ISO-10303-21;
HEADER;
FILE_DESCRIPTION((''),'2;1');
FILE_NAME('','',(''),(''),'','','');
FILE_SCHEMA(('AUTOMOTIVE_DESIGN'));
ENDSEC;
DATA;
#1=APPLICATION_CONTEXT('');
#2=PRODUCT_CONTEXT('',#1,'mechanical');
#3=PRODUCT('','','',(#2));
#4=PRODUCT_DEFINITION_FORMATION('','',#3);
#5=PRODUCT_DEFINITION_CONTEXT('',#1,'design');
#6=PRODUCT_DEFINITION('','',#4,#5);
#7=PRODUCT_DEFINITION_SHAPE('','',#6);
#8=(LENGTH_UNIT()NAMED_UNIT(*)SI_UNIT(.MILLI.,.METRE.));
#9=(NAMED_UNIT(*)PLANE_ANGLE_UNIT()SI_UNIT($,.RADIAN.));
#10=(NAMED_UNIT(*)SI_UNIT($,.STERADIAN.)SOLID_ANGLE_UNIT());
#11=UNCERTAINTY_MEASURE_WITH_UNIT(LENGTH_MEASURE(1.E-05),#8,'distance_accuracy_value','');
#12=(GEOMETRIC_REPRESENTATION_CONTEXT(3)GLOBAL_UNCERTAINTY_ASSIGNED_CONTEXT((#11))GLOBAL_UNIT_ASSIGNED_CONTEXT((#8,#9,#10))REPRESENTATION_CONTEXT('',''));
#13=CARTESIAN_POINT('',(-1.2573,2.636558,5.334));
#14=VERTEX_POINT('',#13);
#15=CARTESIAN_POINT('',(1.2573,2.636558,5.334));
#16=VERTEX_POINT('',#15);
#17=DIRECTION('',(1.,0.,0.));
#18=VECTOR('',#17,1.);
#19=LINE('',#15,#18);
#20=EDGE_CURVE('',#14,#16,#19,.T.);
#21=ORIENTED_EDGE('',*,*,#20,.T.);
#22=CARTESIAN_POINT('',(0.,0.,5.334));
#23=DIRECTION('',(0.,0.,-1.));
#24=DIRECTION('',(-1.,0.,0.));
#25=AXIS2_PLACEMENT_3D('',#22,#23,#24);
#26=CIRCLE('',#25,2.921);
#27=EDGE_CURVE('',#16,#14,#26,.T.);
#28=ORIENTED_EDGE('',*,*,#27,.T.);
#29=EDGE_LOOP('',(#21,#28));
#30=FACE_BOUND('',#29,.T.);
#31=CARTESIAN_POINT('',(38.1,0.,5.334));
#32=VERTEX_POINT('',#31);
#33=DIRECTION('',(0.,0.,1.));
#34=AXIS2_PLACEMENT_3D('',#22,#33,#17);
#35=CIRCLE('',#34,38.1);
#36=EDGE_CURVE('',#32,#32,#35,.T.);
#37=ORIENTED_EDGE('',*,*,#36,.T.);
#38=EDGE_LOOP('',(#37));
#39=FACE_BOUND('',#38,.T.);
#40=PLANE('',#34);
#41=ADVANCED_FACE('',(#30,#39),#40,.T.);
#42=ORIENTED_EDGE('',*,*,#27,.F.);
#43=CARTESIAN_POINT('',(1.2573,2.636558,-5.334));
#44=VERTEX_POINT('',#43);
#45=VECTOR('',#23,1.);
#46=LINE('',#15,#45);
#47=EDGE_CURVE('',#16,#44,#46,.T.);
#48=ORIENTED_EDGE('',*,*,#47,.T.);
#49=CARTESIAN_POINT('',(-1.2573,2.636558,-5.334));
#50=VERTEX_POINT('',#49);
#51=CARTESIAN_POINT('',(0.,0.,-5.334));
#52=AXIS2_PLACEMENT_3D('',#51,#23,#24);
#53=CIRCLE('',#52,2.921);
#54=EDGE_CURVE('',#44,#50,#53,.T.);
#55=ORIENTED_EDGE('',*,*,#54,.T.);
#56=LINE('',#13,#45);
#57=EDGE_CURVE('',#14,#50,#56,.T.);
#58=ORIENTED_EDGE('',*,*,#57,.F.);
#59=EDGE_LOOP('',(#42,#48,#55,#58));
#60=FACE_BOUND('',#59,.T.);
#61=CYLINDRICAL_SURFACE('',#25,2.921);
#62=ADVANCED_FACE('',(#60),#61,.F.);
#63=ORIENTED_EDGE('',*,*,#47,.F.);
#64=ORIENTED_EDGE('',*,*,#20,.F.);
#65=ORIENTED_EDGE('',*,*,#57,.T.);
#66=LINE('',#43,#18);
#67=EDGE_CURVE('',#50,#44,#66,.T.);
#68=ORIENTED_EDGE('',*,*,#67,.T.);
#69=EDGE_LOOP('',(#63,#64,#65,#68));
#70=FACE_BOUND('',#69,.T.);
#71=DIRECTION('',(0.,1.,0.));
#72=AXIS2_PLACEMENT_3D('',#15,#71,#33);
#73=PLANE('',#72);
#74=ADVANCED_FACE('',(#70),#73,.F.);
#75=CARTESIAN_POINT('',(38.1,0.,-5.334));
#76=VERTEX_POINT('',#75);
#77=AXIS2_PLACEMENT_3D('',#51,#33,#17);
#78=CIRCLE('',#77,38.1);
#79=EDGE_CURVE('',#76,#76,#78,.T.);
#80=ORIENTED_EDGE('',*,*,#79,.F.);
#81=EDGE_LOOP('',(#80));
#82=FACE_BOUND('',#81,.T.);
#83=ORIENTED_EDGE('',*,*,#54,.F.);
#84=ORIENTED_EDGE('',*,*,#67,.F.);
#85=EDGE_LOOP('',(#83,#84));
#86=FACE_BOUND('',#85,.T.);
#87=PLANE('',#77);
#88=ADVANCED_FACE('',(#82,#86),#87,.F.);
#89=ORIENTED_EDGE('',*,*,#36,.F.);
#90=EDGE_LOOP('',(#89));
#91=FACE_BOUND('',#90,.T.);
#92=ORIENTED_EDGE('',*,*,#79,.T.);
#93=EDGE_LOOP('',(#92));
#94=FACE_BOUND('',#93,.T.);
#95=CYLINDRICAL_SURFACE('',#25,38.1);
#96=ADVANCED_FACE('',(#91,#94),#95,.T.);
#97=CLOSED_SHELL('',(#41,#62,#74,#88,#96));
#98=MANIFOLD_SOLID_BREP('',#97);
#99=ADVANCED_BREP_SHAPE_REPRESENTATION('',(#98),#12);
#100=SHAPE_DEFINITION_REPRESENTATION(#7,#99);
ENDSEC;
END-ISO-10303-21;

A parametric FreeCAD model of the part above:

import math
import FreeCAD as App
import Part
import Sketcher
from FreeCAD import Vector
Q = App.Units.Quantity

doc = App.newDocument("Part")
body = doc.addObject("PartDesign::Body", "Body")

# Sketch on XY plane
sketch1 = body.newObject("Sketcher::SketchObject", "Sketch")
sketch1.AttachmentSupport = (doc.getObject("XY_Plane"), [""])
sketch1.MapMode = "FlatFace"
sketch1.addGeometry(Part.Circle(Vector(0, 0, 0), Vector(0, 0, 1), 38), False)
sketch1.addConstraint([
    Sketcher.Constraint("Coincident", 0, 3, -1, 1),
    Sketcher.Constraint("Diameter", 0, Q("3 in")),
])
pad1 = body.newObject("PartDesign::Pad", "Pad")
pad1.Profile = sketch1
pad1.Length = Q("0.42 in")
pad1.Midplane = True

# Sketch on XY plane
sketch2 = body.newObject("Sketcher::SketchObject", "Sketch001")
sketch2.AttachmentSupport = (doc.getObject("XY_Plane"), [""])
sketch2.MapMode = "FlatFace"
sketch2.AttachmentOffset = App.Placement(Vector(0, 0, -0.21 * 25.4), App.Rotation())
sketch2.addGeometry([
    Part.LineSegment(Vector(-1.3, 2.6, 0), Vector(1.3, 2.6, 0)),
    Part.ArcOfCircle(Part.Circle(Vector(0, 0, 0), Vector(0, 0, 1), 2.9), math.radians(115), math.radians(425)),
], False)
sketch2.addConstraint([
    Sketcher.Constraint("Coincident", 0, 1, 1, 1),
    Sketcher.Constraint("Coincident", 1, 2, 0, 2),
    Sketcher.Constraint("Horizontal", 0),
    Sketcher.Constraint("Coincident", 1, 3, -1, 1),
    Sketcher.Constraint("Radius", 1, Q("0.115 in")),
    Sketcher.Constraint("DistanceX", 0, 1, 0, 2, Q("0.099 in")),
])
pocket1 = body.newObject("PartDesign::Pocket", "Pocket")
pocket1.Profile = sketch2
pocket1.Type = "ThroughAll"
pocket1.Reversed = True

doc.recompute()
